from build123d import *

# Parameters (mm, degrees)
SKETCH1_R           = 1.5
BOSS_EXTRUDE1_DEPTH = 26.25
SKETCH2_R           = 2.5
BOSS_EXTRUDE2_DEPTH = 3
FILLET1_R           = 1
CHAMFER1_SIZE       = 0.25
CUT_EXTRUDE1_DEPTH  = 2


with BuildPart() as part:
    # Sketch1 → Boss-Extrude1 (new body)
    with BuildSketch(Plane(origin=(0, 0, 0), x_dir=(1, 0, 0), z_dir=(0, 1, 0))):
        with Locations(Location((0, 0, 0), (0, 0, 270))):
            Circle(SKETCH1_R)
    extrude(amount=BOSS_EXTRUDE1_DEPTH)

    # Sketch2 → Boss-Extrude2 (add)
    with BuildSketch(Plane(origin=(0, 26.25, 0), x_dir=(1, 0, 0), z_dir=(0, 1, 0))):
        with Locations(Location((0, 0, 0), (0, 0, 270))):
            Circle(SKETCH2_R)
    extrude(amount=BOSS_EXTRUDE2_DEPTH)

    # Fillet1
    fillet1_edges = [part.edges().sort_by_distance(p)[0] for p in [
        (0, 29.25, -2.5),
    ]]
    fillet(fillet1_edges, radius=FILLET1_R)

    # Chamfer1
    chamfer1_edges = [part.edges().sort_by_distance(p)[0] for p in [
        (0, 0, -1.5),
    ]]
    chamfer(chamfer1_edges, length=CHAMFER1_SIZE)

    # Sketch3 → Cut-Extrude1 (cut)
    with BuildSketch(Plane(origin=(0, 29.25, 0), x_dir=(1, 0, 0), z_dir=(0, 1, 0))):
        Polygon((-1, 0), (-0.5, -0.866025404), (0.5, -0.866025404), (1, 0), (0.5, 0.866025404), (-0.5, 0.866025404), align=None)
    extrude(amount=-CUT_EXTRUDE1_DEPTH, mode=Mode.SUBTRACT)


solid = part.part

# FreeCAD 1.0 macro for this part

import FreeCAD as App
import Part
import Sketcher

V = App.Vector
Q = App.Units.Quantity


def edges_at(feature, points):
    """Names of the edges that pass closest to the given points."""
    edges = feature.Shape.Edges
    near = lambda p: min(range(len(edges)), key=lambda i: edges[i].distToShape(Part.Vertex(*p))[0])
    return sorted({f"Edge{near(p) + 1}" for p in points})

doc = App.newDocument("Part")
params = doc.addObject("Spreadsheet::Sheet", "Params")
for row, (alias, value) in enumerate([
    ("sketch1_diameter", "3 mm"),
    ("pad1_length", "26.25 mm"),
    ("sketch2_diameter", "5 mm"),
    ("pad2_length", "3 mm"),
    ("fillet_radius", "1 mm"),
    ("chamfer_size", "0.25 mm"),
    ("sketch3_width", "1 mm"),
    ("sketch3_length", "1 mm"),
    ("pocket1_length", "2 mm"),
], start=1):
    params.set(f"A{row}", alias)
    params.set(f"B{row}", "=" + value)
    params.setAlias(f"B{row}", alias)

body = doc.addObject("PartDesign::Body", "Body")

# Sketch on XZ plane
sketch1 = doc.addObject("Sketcher::SketchObject", "Sketch")
body.addObject(sketch1)
sketch1.AttachmentSupport = (doc.XZ_Plane, [""])
sketch1.MapMode = "FlatFace"
sketch1.addGeometry(Part.Circle(V(0, 0, 0), V(0, 0, 1), 1.5), False)
sketch1.addConstraint(Sketcher.Constraint("Coincident", 0, 3, -1, 1))
sketch1.addConstraint(Sketcher.Constraint("Diameter", 0, Q("3 mm")))
sketch1.setExpression("Constraints[1]", "Params.sketch1_diameter")
pad1 = doc.addObject("PartDesign::Pad", "Pad")
body.addObject(pad1)
pad1.Profile = sketch1
pad1.setExpression("Length", "Params.pad1_length")
pad1.Reversed = True

# Sketch on XZ plane
sketch2 = doc.addObject("Sketcher::SketchObject", "Sketch001")
body.addObject(sketch2)
sketch2.AttachmentSupport = (doc.XZ_Plane, [""])
sketch2.MapMode = "FlatFace"
sketch2.AttachmentOffset = App.Placement(V(0, 0, -26.25), App.Rotation())
sketch2.addGeometry(Part.Circle(V(0, 0, 0), V(0, 0, 1), 2.5), False)
sketch2.addConstraint(Sketcher.Constraint("Coincident", 0, 3, -1, 1))
sketch2.addConstraint(Sketcher.Constraint("Diameter", 0, Q("5 mm")))
sketch2.setExpression("Constraints[1]", "Params.sketch2_diameter")
pad2 = doc.addObject("PartDesign::Pad", "Pad001")
body.addObject(pad2)
pad2.Profile = sketch2
pad2.setExpression("Length", "Params.pad2_length")
pad2.Reversed = True
doc.recompute()

fillet = doc.addObject("PartDesign::Fillet", "Fillet")
body.addObject(fillet)
fillet.Base = (pad2, edges_at(pad2, [(0, 29.25, -2.5)]))
fillet.setExpression("Radius", "Params.fillet_radius")
doc.recompute()

chamfer = doc.addObject("PartDesign::Chamfer", "Chamfer")
body.addObject(chamfer)
chamfer.Base = (fillet, edges_at(fillet, [(0, 0, -1.5)]))
chamfer.setExpression("Size", "Params.chamfer_size")

# Sketch on XZ plane
sketch3 = doc.addObject("Sketcher::SketchObject", "Sketch002")
body.addObject(sketch3)
sketch3.AttachmentSupport = (doc.XZ_Plane, [""])
sketch3.MapMode = "FlatFace"
sketch3.AttachmentOffset = App.Placement(V(0, 0, -29.25), App.Rotation())
sketch3.addGeometry(Part.LineSegment(V(-1, 0, 0), V(-0.5, 0.9, 0)), False)
sketch3.addGeometry(Part.LineSegment(V(-0.5, 0.9, 0), V(0.5, 0.9, 0)), False)
sketch3.addGeometry(Part.LineSegment(V(0.5, 0.9, 0), V(1, 0, 0)), False)
sketch3.addGeometry(Part.LineSegment(V(1, 0, 0), V(0.5, -0.9, 0)), False)
sketch3.addGeometry(Part.LineSegment(V(0.5, -0.9, 0), V(-0.5, -0.9, 0)), False)
sketch3.addGeometry(Part.LineSegment(V(-0.5, -0.9, 0), V(-1, 0, 0)), False)
sketch3.addConstraint(Sketcher.Constraint("Coincident", 0, 2, 1, 1))
sketch3.addConstraint(Sketcher.Constraint("Coincident", 1, 2, 2, 1))
sketch3.addConstraint(Sketcher.Constraint("Coincident", 2, 2, 3, 1))
sketch3.addConstraint(Sketcher.Constraint("Coincident", 3, 2, 4, 1))
sketch3.addConstraint(Sketcher.Constraint("Coincident", 4, 2, 5, 1))
sketch3.addConstraint(Sketcher.Constraint("Coincident", 5, 2, 0, 1))
sketch3.addConstraint(Sketcher.Constraint("Horizontal", 1))
sketch3.addConstraint(Sketcher.Constraint("Horizontal", 4))
sketch3.addConstraint(Sketcher.Constraint("Symmetric", 0, 2, 3, 2, -1, 1))
sketch3.addConstraint(Sketcher.Constraint("Symmetric", 2, 2, 5, 2, -1, 1))
sketch3.addConstraint(Sketcher.Constraint("PointOnObject", 2, 2, -1))
sketch3.addConstraint(Sketcher.Constraint("Parallel", 2, 5))
sketch3.addConstraint(Sketcher.Constraint("Vertical", 1, 2, 3, 2))
sketch3.addConstraint(Sketcher.Constraint("DistanceX", 1, 1, 1, 2, Q("1 mm")))
sketch3.addConstraint(Sketcher.Constraint("Angle", 0, Q("60 deg")))
sketch3.addConstraint(Sketcher.Constraint("Distance", 0, Q("1 mm")))
sketch3.setExpression("Constraints[13]", "Params.sketch3_width")
sketch3.setExpression("Constraints[15]", "Params.sketch3_length")
pocket1 = doc.addObject("PartDesign::Pocket", "Pocket")
body.addObject(pocket1)
pocket1.Profile = sketch3
pocket1.setExpression("Length", "Params.pocket1_length")
pocket1.Reversed = True

doc.recompute()
